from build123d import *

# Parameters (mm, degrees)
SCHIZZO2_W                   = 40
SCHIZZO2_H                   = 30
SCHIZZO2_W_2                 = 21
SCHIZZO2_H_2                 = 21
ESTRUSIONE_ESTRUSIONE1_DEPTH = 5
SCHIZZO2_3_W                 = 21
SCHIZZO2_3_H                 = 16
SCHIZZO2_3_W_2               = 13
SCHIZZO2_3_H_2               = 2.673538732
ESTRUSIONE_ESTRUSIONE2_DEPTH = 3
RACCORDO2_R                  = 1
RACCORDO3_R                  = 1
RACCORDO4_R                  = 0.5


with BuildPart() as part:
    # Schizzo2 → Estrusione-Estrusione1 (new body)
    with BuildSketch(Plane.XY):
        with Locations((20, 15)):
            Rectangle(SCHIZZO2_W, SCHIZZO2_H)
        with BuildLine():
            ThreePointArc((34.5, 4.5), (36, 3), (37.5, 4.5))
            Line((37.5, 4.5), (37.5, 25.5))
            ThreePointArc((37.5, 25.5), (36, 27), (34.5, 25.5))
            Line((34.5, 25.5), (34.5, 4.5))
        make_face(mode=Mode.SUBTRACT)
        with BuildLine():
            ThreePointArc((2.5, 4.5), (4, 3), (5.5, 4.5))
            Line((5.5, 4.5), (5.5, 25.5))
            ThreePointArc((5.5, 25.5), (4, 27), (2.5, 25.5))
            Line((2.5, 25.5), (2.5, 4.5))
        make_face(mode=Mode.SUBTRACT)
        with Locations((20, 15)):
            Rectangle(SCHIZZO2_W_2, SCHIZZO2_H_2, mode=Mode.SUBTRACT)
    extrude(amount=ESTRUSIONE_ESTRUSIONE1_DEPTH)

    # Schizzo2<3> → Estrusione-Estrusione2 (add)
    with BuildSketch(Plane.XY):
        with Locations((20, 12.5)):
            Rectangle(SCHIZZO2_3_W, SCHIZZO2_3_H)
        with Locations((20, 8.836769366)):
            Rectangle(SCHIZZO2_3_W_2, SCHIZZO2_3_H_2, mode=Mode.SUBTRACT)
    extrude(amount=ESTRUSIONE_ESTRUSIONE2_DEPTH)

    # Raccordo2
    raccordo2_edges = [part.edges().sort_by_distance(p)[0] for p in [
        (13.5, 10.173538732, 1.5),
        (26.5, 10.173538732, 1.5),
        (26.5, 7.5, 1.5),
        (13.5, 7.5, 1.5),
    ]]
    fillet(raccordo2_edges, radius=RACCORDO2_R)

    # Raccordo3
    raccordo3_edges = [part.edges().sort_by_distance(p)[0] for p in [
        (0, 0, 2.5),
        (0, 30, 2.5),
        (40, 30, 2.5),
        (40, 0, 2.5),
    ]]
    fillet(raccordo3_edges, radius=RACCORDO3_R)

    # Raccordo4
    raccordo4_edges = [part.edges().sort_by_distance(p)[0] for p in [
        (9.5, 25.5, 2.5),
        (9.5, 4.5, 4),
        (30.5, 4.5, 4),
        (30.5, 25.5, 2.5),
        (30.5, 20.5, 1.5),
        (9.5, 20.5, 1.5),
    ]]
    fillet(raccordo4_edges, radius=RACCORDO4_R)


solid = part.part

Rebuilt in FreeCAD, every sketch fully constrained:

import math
import FreeCAD as App
import Part
import Sketcher


def edges_at(feature, points):
    """Names of the edges that pass closest to the given points."""
    edges = feature.Shape.Edges
    near = lambda p: min(range(len(edges)), key=lambda i: edges[i].distToShape(Part.Vertex(*p))[0])
    return sorted({f"Edge{near(p) + 1}" for p in points})


def add_polygon(sketch, points):
    """Adds a closed chain of lines whose ends are joined by coincident constraints."""
    first, n = sketch.GeometryCount, len(points)
    for a, b in zip(points, points[1:] + points[:1]):
        sketch.addGeometry(Part.LineSegment(App.Vector(*a, 0), App.Vector(*b, 0)), False)
    for i in range(n):
        sketch.addConstraint(Sketcher.Constraint("Coincident", first + i, 2, first + (i + 1) % n, 1))

doc = App.newDocument("Part")
body = doc.addObject("PartDesign::Body", "Body")

# Sketch on XY plane
sketch1 = doc.addObject("Sketcher::SketchObject", "Sketch")
body.addObject(sketch1)
sketch1.AttachmentSupport = (doc.XY_Plane, [""])
sketch1.MapMode = "FlatFace"
add_polygon(sketch1, [(0, 30), (0, 0), (40, 0), (40, 30)])  # lines 0-3
sketch1.addGeometry(Part.ArcOfCircle(Part.Circle(App.Vector(4, 4.5, 0), App.Vector(0, 0, 1), 1.5), math.radians(180), math.radians(360)), False)  # 4
sketch1.addGeometry(Part.LineSegment(App.Vector(2.5, 4.5, 0), App.Vector(2.5, 25.5, 0)), False)  # 5
sketch1.addGeometry(Part.ArcOfCircle(Part.Circle(App.Vector(4, 25.5, 0), App.Vector(0, 0, 1), 1.5), math.radians(0), math.radians(180)), False)  # 6
sketch1.addGeometry(Part.LineSegment(App.Vector(5.5, 25.5, 0), App.Vector(5.5, 4.5, 0)), False)  # 7
add_polygon(sketch1, [(30.5, 4.5), (9.5, 4.5), (9.5, 25.5), (30.5, 25.5)])  # lines 8-11
sketch1.addGeometry(Part.ArcOfCircle(Part.Circle(App.Vector(36, 4.5, 0), App.Vector(0, 0, 1), 1.5), math.radians(180), math.radians(360)), False)  # 12
sketch1.addGeometry(Part.LineSegment(App.Vector(34.5, 4.5, 0), App.Vector(34.5, 25.5, 0)), False)  # 13
sketch1.addGeometry(Part.ArcOfCircle(Part.Circle(App.Vector(36, 25.5, 0), App.Vector(0, 0, 1), 1.5), math.radians(0), math.radians(180)), False)  # 14
sketch1.addGeometry(Part.LineSegment(App.Vector(37.5, 25.5, 0), App.Vector(37.5, 4.5, 0)), False)  # 15
sketch1.addConstraint(Sketcher.Constraint("Tangent", 4, 1, 5, 1))
sketch1.addConstraint(Sketcher.Constraint("Tangent", 5, 2, 6, 2))
sketch1.addConstraint(Sketcher.Constraint("Tangent", 6, 1, 7, 1))
sketch1.addConstraint(Sketcher.Constraint("Tangent", 7, 2, 4, 2))
sketch1.addConstraint(Sketcher.Constraint("Tangent", 12, 1, 13, 1))
sketch1.addConstraint(Sketcher.Constraint("Tangent", 13, 2, 14, 2))
sketch1.addConstraint(Sketcher.Constraint("Tangent", 14, 1, 15, 1))
sketch1.addConstraint(Sketcher.Constraint("Tangent", 15, 2, 12, 2))
sketch1.addConstraint(Sketcher.Constraint("Vertical", 0))
sketch1.addConstraint(Sketcher.Constraint("Horizontal", 1))
sketch1.addConstraint(Sketcher.Constraint("Vertical", 2))
sketch1.addConstraint(Sketcher.Constraint("Horizontal", 3))
sketch1.addConstraint(Sketcher.Constraint("Vertical", 5))
sketch1.addConstraint(Sketcher.Constraint("Vertical", 7))
sketch1.addConstraint(Sketcher.Constraint("Horizontal", 8))
sketch1.addConstraint(Sketcher.Constraint("Vertical", 9))
sketch1.addConstraint(Sketcher.Constraint("Horizontal", 10))
sketch1.addConstraint(Sketcher.Constraint("Vertical", 11))
sketch1.addConstraint(Sketcher.Constraint("Vertical", 13))
sketch1.addConstraint(Sketcher.Constraint("Vertical", 15))
sketch1.addConstraint(Sketcher.Constraint("Coincident", 0, 2, -1, 1))
sketch1.addConstraint(Sketcher.Constraint("Equal", 6, 12))
sketch1.addConstraint(Sketcher.Constraint("Horizontal", 4, 3, 12, 3))
sketch1.addConstraint(Sketcher.Constraint("Horizontal", 6, 3, 14, 3))
sketch1.addConstraint(Sketcher.Constraint("Horizontal", 7, 2, 8, 2))
sketch1.addConstraint(Sketcher.Constraint("Horizontal", 6, 1, 9, 2))
sketch1.addConstraint(Sketcher.Constraint("Equal", 10, 5))
sketch1.addConstraint(Sketcher.Constraint("Radius", 4, 1.5))
sketch1.addConstraint(Sketcher.Constraint("DistanceX", 1, 1, 1, 2, 40.0))
sketch1.addConstraint(Sketcher.Constraint("DistanceX", 8, 2, 8, 1, 21.0))
sketch1.addConstraint(Sketcher.Constraint("DistanceY", 0, 2, 0, 1, 30.0))
sketch1.addConstraint(Sketcher.Constraint("DistanceX", -1, 1, 4, 3, 4.0))
sketch1.addConstraint(Sketcher.Constraint("DistanceX", -1, 1, 12, 3, 36.0))
sketch1.addConstraint(Sketcher.Constraint("DistanceX", 7, 2, 8, 2, 4.0))
sketch1.addConstraint(Sketcher.Constraint("DistanceY", -1, 1, 4, 3, 4.5))
pad1 = doc.addObject("PartDesign::Pad", "Pad")
body.addObject(pad1)
pad1.Profile = sketch1
pad1.Length = 5

# Sketch on XY plane
sketch2 = doc.addObject("Sketcher::SketchObject", "Sketch001")
body.addObject(sketch2)
sketch2.AttachmentSupport = (doc.XY_Plane, [""])
sketch2.MapMode = "FlatFace"
add_polygon(sketch2, [(9.5, 20.5), (9.5, 4.5), (30.5, 4.5), (30.5, 20.5)])  # lines 0-3
add_polygon(sketch2, [(26.5, 7.5), (13.5, 7.5), (13.5, 10.2), (26.5, 10.2)])  # lines 4-7
sketch2.addConstraint(Sketcher.Constraint("Vertical", 0))
sketch2.addConstraint(Sketcher.Constraint("Horizontal", 1))
sketch2.addConstraint(Sketcher.Constraint("Vertical", 2))
sketch2.addConstraint(Sketcher.Constraint("Horizontal", 3))
sketch2.addConstraint(Sketcher.Constraint("Horizontal", 4))
sketch2.addConstraint(Sketcher.Constraint("Vertical", 5))
sketch2.addConstraint(Sketcher.Constraint("Horizontal", 6))
sketch2.addConstraint(Sketcher.Constraint("Vertical", 7))
sketch2.addConstraint(Sketcher.Constraint("DistanceX", 1, 1, 1, 2, 21.0))
sketch2.addConstraint(Sketcher.Constraint("DistanceX", 4, 2, 4, 1, 13.0))
sketch2.addConstraint(Sketcher.Constraint("DistanceY", 0, 2, 0, 1, 16.0))
sketch2.addConstraint(Sketcher.Constraint("DistanceX", 0, 2, 4, 2, 4.0))
sketch2.addConstraint(Sketcher.Constraint("DistanceY", 0, 2, 4, 2, 3.0))
sketch2.addConstraint(Sketcher.Constraint("DistanceX", -1, 1, 0, 2, 9.5))
sketch2.addConstraint(Sketcher.Constraint("DistanceY", -1, 1, 0, 2, 4.5))
sketch2.addConstraint(Sketcher.Constraint("DistanceY", 5, 1, 5, 2, 2.673539))
pad2 = doc.addObject("PartDesign::Pad", "Pad001")
body.addObject(pad2)
pad2.Profile = sketch2
pad2.Length = 3
doc.recompute()

fillet = doc.addObject("PartDesign::Fillet", "Fillet")
body.addObject(fillet)
fillet.Base = (pad2, edges_at(pad2, [
    (13.5, 10.174, 1.5),
    (26.5, 10.174, 1.5),
    (26.5, 7.5, 1.5),
    (13.5, 7.5, 1.5),
]))
fillet.Radius = 1
doc.recompute()

fillet2 = doc.addObject("PartDesign::Fillet", "Fillet001")
body.addObject(fillet2)
fillet2.Base = (fillet, edges_at(fillet, [
    (0, 0, 2.5),
    (0, 30, 2.5),
    (40, 30, 2.5),
    (40, 0, 2.5),
]))
fillet2.Radius = 1
doc.recompute()

fillet3 = doc.addObject("PartDesign::Fillet", "Fillet002")
body.addObject(fillet3)
fillet3.Base = (fillet2, edges_at(fillet2, [
    (9.5, 25.5, 2.5),
    (9.5, 4.5, 4),
    (30.5, 4.5, 4),
    (30.5, 25.5, 2.5),
    (30.5, 20.5, 1.5),
    (9.5, 20.5, 1.5),
]))
fillet3.Radius = 0.5

doc.recompute()
